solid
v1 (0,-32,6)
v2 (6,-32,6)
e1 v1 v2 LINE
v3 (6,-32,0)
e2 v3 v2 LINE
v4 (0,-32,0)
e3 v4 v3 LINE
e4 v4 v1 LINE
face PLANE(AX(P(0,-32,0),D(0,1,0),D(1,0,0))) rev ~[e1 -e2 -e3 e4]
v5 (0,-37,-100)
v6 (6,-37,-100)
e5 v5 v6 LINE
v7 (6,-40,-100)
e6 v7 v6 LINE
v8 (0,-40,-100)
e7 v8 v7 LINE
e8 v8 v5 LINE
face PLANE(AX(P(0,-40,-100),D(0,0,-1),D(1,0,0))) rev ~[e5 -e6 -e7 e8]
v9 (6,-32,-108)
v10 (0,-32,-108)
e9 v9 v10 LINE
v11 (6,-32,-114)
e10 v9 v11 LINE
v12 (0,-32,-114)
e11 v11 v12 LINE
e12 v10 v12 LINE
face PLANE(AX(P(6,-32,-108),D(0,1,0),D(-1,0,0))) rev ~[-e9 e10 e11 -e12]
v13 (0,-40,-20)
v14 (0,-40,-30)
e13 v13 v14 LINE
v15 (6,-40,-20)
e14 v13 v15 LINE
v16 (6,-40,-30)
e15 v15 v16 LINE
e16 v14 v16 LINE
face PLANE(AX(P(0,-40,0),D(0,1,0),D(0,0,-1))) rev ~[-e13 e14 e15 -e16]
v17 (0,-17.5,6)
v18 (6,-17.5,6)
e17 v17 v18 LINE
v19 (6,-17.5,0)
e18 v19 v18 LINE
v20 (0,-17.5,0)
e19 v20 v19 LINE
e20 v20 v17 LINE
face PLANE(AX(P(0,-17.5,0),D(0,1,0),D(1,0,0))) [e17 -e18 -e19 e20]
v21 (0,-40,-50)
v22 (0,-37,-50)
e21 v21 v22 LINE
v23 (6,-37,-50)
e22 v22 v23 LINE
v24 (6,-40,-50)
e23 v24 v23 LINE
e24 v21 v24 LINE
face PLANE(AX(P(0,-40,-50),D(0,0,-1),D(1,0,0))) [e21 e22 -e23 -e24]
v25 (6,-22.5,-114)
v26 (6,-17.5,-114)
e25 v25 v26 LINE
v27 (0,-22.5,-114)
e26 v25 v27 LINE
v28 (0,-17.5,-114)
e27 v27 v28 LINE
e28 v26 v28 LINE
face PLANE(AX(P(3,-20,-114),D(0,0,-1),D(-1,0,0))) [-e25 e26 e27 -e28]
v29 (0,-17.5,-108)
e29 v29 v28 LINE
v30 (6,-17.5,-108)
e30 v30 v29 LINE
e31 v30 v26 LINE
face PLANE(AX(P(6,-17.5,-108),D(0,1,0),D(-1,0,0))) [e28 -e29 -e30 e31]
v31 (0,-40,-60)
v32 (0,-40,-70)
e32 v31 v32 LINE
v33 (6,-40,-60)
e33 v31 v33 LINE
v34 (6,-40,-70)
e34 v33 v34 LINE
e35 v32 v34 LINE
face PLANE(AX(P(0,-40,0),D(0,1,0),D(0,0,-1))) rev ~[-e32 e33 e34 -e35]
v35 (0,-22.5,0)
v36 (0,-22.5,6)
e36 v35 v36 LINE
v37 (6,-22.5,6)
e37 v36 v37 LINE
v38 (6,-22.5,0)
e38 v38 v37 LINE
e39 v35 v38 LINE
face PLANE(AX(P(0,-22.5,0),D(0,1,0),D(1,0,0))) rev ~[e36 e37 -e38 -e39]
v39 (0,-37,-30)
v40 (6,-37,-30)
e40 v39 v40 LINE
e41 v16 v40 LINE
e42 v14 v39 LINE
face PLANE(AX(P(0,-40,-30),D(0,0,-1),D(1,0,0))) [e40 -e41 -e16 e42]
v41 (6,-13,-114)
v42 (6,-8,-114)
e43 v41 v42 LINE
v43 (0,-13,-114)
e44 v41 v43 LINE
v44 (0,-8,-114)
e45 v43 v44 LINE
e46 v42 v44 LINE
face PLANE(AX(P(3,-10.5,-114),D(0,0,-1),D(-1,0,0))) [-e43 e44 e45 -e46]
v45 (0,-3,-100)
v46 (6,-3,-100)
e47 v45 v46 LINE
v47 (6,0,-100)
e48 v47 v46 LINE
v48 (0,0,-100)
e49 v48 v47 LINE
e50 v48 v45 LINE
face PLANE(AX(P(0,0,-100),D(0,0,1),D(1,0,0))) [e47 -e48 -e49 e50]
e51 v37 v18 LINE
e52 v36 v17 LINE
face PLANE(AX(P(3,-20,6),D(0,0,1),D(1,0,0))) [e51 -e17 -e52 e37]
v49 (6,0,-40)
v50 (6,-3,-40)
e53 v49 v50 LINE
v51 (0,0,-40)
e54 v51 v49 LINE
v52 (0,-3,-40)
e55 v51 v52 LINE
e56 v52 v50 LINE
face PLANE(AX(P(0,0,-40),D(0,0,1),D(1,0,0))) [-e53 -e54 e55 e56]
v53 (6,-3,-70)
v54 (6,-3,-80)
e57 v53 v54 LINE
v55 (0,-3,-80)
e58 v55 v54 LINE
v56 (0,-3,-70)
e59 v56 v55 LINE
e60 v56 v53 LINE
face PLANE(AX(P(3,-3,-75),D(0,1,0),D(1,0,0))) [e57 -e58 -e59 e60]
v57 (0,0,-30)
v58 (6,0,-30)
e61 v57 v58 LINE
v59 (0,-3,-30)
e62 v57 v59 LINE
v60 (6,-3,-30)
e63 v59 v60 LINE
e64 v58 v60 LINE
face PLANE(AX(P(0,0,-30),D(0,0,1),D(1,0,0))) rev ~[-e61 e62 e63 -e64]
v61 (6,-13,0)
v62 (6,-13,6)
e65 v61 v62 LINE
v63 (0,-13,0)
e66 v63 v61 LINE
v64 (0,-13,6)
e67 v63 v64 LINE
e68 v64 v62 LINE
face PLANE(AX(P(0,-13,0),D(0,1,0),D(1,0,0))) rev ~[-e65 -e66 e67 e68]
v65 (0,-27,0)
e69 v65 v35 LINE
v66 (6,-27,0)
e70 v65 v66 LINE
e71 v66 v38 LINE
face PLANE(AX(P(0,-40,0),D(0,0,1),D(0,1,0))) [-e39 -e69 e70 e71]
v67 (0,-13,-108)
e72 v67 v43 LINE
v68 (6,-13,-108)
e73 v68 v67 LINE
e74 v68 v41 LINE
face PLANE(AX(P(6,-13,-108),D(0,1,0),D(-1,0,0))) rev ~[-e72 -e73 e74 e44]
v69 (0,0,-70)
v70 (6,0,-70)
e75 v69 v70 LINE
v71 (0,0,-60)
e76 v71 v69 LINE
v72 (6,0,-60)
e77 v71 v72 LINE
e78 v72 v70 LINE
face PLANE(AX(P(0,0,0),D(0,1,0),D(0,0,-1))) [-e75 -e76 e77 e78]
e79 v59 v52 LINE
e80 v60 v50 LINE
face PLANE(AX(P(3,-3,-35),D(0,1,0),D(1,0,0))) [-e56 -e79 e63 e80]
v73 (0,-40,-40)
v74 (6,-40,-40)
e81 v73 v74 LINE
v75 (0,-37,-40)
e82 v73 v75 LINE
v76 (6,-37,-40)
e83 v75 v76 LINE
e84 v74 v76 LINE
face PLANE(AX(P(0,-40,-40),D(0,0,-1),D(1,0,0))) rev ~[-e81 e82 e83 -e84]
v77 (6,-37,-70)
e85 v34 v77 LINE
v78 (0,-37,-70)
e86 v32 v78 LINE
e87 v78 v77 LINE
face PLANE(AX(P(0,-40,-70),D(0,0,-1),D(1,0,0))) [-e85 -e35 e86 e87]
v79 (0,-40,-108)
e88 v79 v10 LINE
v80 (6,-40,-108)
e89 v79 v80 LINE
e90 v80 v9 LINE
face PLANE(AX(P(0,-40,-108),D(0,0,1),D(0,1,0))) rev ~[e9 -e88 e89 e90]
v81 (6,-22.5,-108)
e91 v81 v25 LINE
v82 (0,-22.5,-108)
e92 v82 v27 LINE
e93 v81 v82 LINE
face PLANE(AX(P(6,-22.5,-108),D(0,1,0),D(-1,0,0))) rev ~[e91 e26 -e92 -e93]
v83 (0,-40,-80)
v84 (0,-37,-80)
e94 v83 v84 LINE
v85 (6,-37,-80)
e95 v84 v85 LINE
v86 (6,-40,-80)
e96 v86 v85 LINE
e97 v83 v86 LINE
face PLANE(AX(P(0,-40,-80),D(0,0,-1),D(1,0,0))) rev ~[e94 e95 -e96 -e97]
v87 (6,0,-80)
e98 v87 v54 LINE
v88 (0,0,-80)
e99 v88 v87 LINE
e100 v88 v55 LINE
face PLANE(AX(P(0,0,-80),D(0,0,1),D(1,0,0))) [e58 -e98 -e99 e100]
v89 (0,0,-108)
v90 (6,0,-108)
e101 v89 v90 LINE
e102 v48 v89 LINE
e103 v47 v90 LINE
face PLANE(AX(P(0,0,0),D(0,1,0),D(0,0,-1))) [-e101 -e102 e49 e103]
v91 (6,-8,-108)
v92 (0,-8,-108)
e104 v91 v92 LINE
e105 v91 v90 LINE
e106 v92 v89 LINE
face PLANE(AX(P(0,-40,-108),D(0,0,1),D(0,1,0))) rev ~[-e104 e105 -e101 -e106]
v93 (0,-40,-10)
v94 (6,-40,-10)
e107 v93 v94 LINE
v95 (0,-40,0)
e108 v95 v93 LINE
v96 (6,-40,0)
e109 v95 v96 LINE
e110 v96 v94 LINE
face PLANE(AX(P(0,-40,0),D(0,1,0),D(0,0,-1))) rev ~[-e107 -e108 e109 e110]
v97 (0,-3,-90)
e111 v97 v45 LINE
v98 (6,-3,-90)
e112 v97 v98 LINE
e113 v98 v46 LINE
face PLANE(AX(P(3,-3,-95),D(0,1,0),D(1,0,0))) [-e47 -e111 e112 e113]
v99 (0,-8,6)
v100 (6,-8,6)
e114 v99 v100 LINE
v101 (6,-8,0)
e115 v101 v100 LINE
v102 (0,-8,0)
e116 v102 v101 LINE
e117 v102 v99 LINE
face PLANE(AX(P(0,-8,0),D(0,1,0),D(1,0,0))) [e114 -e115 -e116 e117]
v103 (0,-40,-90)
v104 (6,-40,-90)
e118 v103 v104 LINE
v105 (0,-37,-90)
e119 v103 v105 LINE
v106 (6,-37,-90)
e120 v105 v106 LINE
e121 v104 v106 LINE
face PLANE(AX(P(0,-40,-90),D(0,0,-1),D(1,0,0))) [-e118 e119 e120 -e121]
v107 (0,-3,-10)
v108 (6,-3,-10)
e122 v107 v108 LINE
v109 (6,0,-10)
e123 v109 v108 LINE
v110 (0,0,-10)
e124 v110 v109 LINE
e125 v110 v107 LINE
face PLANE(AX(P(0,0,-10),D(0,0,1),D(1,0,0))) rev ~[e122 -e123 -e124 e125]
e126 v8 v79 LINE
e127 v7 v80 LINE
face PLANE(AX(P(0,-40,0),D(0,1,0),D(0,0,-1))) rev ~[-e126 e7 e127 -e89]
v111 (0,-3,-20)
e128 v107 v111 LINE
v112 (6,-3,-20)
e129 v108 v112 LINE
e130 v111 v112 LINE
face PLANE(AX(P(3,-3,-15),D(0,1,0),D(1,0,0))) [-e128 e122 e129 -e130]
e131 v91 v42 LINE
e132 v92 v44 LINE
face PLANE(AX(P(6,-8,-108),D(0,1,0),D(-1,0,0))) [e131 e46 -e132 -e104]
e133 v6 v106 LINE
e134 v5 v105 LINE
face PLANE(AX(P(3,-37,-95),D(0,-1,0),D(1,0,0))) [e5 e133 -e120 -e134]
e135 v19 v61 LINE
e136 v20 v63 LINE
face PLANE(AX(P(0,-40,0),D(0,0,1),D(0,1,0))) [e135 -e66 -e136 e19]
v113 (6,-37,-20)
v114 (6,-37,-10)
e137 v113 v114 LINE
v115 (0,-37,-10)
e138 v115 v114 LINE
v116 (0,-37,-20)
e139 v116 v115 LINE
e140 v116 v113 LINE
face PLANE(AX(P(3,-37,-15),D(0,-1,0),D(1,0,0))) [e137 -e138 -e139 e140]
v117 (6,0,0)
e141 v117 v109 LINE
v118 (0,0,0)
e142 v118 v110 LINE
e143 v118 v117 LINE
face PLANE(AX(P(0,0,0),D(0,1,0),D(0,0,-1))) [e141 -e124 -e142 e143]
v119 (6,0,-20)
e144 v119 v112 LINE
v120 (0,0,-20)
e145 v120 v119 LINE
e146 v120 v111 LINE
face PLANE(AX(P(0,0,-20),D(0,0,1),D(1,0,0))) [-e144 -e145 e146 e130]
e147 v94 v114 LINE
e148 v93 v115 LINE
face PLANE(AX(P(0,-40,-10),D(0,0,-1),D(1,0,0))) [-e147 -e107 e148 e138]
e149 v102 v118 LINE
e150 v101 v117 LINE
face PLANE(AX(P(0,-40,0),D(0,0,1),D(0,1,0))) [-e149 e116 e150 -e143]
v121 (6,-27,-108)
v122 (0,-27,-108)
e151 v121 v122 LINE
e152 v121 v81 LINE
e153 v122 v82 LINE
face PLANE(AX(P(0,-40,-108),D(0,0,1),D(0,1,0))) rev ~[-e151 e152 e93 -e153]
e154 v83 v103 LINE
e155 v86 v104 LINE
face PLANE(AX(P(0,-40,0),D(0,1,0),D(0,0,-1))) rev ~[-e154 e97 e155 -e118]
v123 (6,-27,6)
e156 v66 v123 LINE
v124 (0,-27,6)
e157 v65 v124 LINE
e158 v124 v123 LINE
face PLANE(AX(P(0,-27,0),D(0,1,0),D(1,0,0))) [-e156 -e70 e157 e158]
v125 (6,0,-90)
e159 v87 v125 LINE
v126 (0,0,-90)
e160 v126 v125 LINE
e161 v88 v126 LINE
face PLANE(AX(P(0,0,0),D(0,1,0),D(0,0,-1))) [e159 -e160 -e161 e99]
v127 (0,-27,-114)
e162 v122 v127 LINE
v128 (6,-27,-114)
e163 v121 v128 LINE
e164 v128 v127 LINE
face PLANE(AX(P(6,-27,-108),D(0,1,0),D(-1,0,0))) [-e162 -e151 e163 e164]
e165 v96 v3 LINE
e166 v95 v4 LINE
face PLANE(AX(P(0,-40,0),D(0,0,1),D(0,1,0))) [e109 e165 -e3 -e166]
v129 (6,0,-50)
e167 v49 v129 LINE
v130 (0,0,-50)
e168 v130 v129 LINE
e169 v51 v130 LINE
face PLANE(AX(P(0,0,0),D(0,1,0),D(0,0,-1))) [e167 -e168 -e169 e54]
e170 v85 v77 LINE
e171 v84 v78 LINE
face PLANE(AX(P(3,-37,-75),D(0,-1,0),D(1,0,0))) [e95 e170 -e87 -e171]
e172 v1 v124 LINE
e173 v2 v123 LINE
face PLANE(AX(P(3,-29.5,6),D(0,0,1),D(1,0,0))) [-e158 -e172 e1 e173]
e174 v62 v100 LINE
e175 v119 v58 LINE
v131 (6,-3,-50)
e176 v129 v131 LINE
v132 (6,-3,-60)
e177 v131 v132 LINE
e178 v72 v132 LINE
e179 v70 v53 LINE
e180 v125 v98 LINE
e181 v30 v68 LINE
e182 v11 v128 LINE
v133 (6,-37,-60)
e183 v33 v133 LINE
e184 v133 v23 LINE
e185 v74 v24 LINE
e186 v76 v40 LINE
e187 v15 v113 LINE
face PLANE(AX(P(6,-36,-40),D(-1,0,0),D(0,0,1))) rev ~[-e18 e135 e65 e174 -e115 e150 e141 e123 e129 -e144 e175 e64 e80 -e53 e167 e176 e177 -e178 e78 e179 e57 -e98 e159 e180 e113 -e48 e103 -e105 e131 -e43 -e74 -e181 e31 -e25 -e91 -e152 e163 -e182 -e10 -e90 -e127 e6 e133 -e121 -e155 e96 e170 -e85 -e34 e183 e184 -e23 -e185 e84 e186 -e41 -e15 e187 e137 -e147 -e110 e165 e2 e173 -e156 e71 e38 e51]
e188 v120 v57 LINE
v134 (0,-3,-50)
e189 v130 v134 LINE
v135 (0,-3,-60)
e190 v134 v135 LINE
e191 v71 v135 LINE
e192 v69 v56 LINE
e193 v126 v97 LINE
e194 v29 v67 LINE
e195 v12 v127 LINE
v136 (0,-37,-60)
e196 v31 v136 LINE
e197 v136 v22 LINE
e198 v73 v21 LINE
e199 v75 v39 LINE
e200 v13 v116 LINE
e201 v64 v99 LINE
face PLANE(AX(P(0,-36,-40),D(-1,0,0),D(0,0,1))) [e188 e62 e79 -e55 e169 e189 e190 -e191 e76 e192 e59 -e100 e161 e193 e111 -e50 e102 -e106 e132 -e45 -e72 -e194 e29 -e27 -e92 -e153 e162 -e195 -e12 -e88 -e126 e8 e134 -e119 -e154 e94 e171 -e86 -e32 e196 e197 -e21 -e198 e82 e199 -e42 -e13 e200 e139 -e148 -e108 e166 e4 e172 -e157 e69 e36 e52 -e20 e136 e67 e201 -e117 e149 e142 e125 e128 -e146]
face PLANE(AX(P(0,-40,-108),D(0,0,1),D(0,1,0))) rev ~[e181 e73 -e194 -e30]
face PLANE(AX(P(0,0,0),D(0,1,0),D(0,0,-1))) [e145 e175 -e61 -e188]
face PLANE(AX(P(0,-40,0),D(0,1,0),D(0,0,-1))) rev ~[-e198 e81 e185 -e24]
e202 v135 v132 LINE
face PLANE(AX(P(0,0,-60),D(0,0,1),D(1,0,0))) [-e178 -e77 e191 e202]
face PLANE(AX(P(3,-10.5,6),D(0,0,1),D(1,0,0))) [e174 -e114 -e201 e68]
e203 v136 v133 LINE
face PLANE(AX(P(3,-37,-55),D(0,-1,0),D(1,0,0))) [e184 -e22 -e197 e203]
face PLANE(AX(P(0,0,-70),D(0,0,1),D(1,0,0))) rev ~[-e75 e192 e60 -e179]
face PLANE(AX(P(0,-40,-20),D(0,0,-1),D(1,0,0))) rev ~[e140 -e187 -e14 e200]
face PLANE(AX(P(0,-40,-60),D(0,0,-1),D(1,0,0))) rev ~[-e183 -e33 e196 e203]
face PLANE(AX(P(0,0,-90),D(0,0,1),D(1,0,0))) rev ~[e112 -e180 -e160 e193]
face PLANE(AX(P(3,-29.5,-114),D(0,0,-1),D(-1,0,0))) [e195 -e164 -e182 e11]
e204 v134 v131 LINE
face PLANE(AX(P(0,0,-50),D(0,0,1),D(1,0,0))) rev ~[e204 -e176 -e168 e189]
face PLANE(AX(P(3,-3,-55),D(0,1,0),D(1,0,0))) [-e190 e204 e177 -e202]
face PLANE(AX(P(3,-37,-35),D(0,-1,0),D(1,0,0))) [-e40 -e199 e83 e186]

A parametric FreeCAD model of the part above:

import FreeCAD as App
import Part
import Sketcher
from FreeCAD import Vector


def add_polygon(sketch, points):
    """Adds a closed chain of lines whose ends are joined by coincident constraints."""
    first, n = sketch.GeometryCount, len(points)
    for a, b in zip(points, points[1:] + points[:1]):
        sketch.addGeometry(Part.LineSegment(App.Vector(*a, 0), App.Vector(*b, 0)), False)
    for i in range(n):
        sketch.addConstraint(Sketcher.Constraint("Coincident", first + i, 2, first + (i + 1) % n, 1))

doc = App.newDocument("Part")
body = doc.addObject("PartDesign::Body", "Body")

sketch1 = doc.addObject("Sketcher::SketchObject", "Sketch")
body.addObject(sketch1)
sketch1.AttachmentSupport = (doc.YZ_Plane, [""])
sketch1.MapMode = "FlatFace"
add_polygon(sketch1, [(0, 0), (-40, 0), (-40, -108), (0, -108)])
sketch1.addConstraint([
    Sketcher.Constraint("Horizontal", 0),
    Sketcher.Constraint("Vertical", 1),
    Sketcher.Constraint("Horizontal", 2),
    Sketcher.Constraint("Vertical", 3),
    Sketcher.Constraint("Coincident", 3, 2, -1, 1),
    Sketcher.Constraint("DistanceX", 0, 2, 0, 1, 40.0),
    Sketcher.Constraint("DistanceY", 1, 2, 1, 1, 108.0),
])
pad1 = doc.addObject("PartDesign::Pad", "Pad")
body.addObject(pad1)
pad1.Profile = sketch1
pad1.Length = 6

sketch2 = doc.addObject("Sketcher::SketchObject", "Sketch001")
body.addObject(sketch2)
sketch2.AttachmentSupport = (doc.XY_Plane, [""])
sketch2.MapMode = "FlatFace"
add_polygon(sketch2, [(0, -8), (0, -13), (6, -13), (6, -8)])
add_polygon(sketch2, [(0, -18), (0, -22), (6, -22), (6, -18)])
add_polygon(sketch2, [(0, -27), (0, -32), (6, -32), (6, -27)])
sketch2.addConstraint([
    Sketcher.Constraint("Vertical", 0),
    Sketcher.Constraint("Horizontal", 1),
    Sketcher.Constraint("Vertical", 2),
    Sketcher.Constraint("Horizontal", 3),
    Sketcher.Constraint("Vertical", 4),
    Sketcher.Constraint("Horizontal", 5),
    Sketcher.Constraint("Vertical", 6),
    Sketcher.Constraint("Horizontal", 7),
    Sketcher.Constraint("Vertical", 8),
    Sketcher.Constraint("Horizontal", 9),
    Sketcher.Constraint("Vertical", 10),
    Sketcher.Constraint("Horizontal", 11),
    Sketcher.Constraint("PointOnObject", 0, 2, -2),
    Sketcher.Constraint("PointOnObject", 4, 2, -2),
    Sketcher.Constraint("PointOnObject", 8, 2, -2),
    Sketcher.Constraint("Vertical", 2, 2, 5, 2),
    Sketcher.Constraint("Vertical", 6, 2, 9, 2),
    Sketcher.Constraint("Equal", 2, 4),
    Sketcher.Constraint("Equal", 6, 8),
    Sketcher.Constraint("DistanceX", 1, 1, 1, 2, 6.0),
    Sketcher.Constraint("DistanceY", 0, 2, 0, 1, 5.0),
    Sketcher.Constraint("DistanceY", 0, 2, -1, 1, 13.0),
    Sketcher.Constraint("DistanceY", 8, 2, -1, 1, 32.0),
    Sketcher.Constraint("DistanceY", 4, 2, -1, 1, 22.5),
])
pad2 = doc.addObject("PartDesign::Pad", "Pad001")
body.addObject(pad2)
pad2.Profile = sketch2
pad2.Length = 6

sketch3 = doc.addObject("Sketcher::SketchObject", "Sketch002")
body.addObject(sketch3)
sketch3.AttachmentSupport = (doc.XY_Plane, [""])
sketch3.MapMode = "FlatFace"
sketch3.AttachmentOffset = App.Placement(Vector(0, 0, -108), App.Rotation())
add_polygon(sketch3, [(6, -8), (6, -13), (0, -13), (0, -8)])
add_polygon(sketch3, [(6, -18), (6, -22), (0, -22), (0, -18)])
add_polygon(sketch3, [(6, -27), (6, -32), (0, -32), (0, -27)])
sketch3.addConstraint([
    Sketcher.Constraint("Vertical", 0),
    Sketcher.Constraint("Horizontal", 1),
    Sketcher.Constraint("Vertical", 2),
    Sketcher.Constraint("Horizontal", 3),
    Sketcher.Constraint("Vertical", 4),
    Sketcher.Constraint("Horizontal", 5),
    Sketcher.Constraint("Vertical", 6),
    Sketcher.Constraint("Horizontal", 7),
    Sketcher.Constraint("Vertical", 8),
    Sketcher.Constraint("Horizontal", 9),
    Sketcher.Constraint("Vertical", 10),
    Sketcher.Constraint("Horizontal", 11),
    Sketcher.Constraint("PointOnObject", 1, 2, -2),
    Sketcher.Constraint("PointOnObject", 5, 2, -2),
    Sketcher.Constraint("PointOnObject", 9, 2, -2),
    Sketcher.Constraint("Vertical", 3, 2, 4, 2),
    Sketcher.Constraint("Vertical", 7, 2, 8, 2),
    Sketcher.Constraint("Equal", 2, 4),
    Sketcher.Constraint("Equal", 6, 8),
    Sketcher.Constraint("DistanceX", 1, 2, 1, 1, 6.0),
    Sketcher.Constraint("DistanceY", 0, 2, 0, 1, 5.0),
    Sketcher.Constraint("DistanceY", 0, 2, -1, 1, 13.0),
    Sketcher.Constraint("DistanceY", 8, 2, -1, 1, 32.0),
    Sketcher.Constraint("DistanceY", 4, 2, -1, 1, 22.5),
])
pad3 = doc.addObject("PartDesign::Pad", "Pad002")
body.addObject(pad3)
pad3.Profile = sketch3
pad3.Length = 6
pad3.Reversed = True

sketch4 = doc.addObject("Sketcher::SketchObject", "Sketch003")
body.addObject(sketch4)
sketch4.AttachmentSupport = (doc.XZ_Plane, [""])
sketch4.MapMode = "FlatFace"
sketch4.AttachmentOffset = App.Placement(Vector(0, 0, 40), App.Rotation())
add_polygon(sketch4, [(0, -10), (0, -20), (6, -20), (6, -10)])
add_polygon(sketch4, [(0, -30), (0, -40), (6, -40), (6, -30)])
add_polygon(sketch4, [(0, -50), (0, -60), (6, -60), (6, -50)])
add_polygon(sketch4, [(0, -70), (0, -80), (6, -80), (6, -70)])
add_polygon(sketch4, [(0, -90), (0, -100), (6, -100), (6, -90)])
sketch4.addConstraint([
    Sketcher.Constraint("Vertical", 0),
    Sketcher.Constraint("Horizontal", 1),
    Sketcher.Constraint("Vertical", 2),
    Sketcher.Constraint("Horizontal", 3),
    Sketcher.Constraint("Vertical", 4),
    Sketcher.Constraint("Horizontal", 5),
    Sketcher.Constraint("Vertical", 6),
    Sketcher.Constraint("Horizontal", 7),
    Sketcher.Constraint("Vertical", 8),
    Sketcher.Constraint("Horizontal", 9),
    Sketcher.Constraint("Vertical", 10),
    Sketcher.Constraint("Horizontal", 11),
    Sketcher.Constraint("Vertical", 12),
    Sketcher.Constraint("Horizontal", 13),
    Sketcher.Constraint("Vertical", 14),
    Sketcher.Constraint("Horizontal", 15),
    Sketcher.Constraint("Vertical", 16),
    Sketcher.Constraint("Horizontal", 17),
    Sketcher.Constraint("Vertical", 18),
    Sketcher.Constraint("Horizontal", 19),
    Sketcher.Constraint("PointOnObject", 0, 2, -2),
    Sketcher.Constraint("PointOnObject", 4, 2, -2),
    Sketcher.Constraint("PointOnObject", 8, 2, -2),
    Sketcher.Constraint("PointOnObject", 12, 2, -2),
    Sketcher.Constraint("PointOnObject", 16, 2, -2),
    Sketcher.Constraint("Vertical", 2, 2, 5, 2),
    Sketcher.Constraint("Vertical", 6, 2, 9, 2),
    Sketcher.Constraint("Vertical", 10, 2, 13, 2),
    Sketcher.Constraint("Vertical", 14, 2, 17, 2),
    Sketcher.Constraint("Equal", 2, 4),
    Sketcher.Constraint("Equal", 6, 8),
    Sketcher.Constraint("Equal", 10, 12),
    Sketcher.Constraint("Equal", 14, 16),
    Sketcher.Constraint("DistanceX", 1, 1, 1, 2, 6.0),
    Sketcher.Constraint("DistanceY", 0, 2, 0, 1, 10.0),
    Sketcher.Constraint("DistanceY", 0, 2, -1, 1, 20.0),
    Sketcher.Constraint("DistanceY", 4, 2, -1, 1, 40.0),
    Sketcher.Constraint("DistanceY", 8, 2, -1, 1, 60.0),
    Sketcher.Constraint("DistanceY", 12, 2, -1, 1, 80.0),
    Sketcher.Constraint("DistanceY", 16, 2, -1, 1, 100.0),
])
pocket1 = doc.addObject("PartDesign::Pocket", "Pocket")
body.addObject(pocket1)
pocket1.Profile = sketch4
pocket1.Length = 4

sketch5 = doc.addObject("Sketcher::SketchObject", "Sketch004")
body.addObject(sketch5)
sketch5.AttachmentSupport = (doc.XZ_Plane, [""])
sketch5.MapMode = "FlatFace"
sketch5.AttachmentOffset = App.Placement(Vector(0, 0, 36), App.Rotation())
add_polygon(sketch5, [(0, -10), (0, -20), (6, -20), (6, -10)])
sketch5.addConstraint([
    Sketcher.Constraint("Vertical", 0),
    Sketcher.Constraint("Horizontal", 1),
    Sketcher.Constraint("Vertical", 2),
    Sketcher.Constraint("Horizontal", 3),
    Sketcher.Constraint("PointOnObject", 0, 2, -2),
    Sketcher.Constraint("DistanceX", 1, 1, 1, 2, 6.0),
    Sketcher.Constraint("DistanceY", 0, 2, 0, 1, 10.0),
    Sketcher.Constraint("DistanceY", 0, 2, -1, 1, 20.0),
])
pad4 = doc.addObject("PartDesign::Pad", "Pad003")
body.addObject(pad4)
pad4.Profile = sketch5
pad4.Length = 1
doc.recompute()

linearpattern = doc.addObject("PartDesign::LinearPattern", "LinearPattern")
body.addObject(linearpattern)
linearpattern.Originals = [pad4]
linearpattern.Direction = (doc.Z_Axis, [""])
linearpattern.Mode = "offset"
linearpattern.Offset = 20
linearpattern.Occurrences = 5
linearpattern.Reversed = True
body.Tip = linearpattern

sketch6 = doc.addObject("Sketcher::SketchObject", "Sketch005")
body.addObject(sketch6)
sketch6.AttachmentSupport = (doc.XZ_Plane, [""])
sketch6.MapMode = "FlatFace"
add_polygon(sketch6, [(0, -20), (0, -10), (6, -10), (6, -20)])
add_polygon(sketch6, [(0, -40), (0, -30), (6, -30), (6, -40)])
add_polygon(sketch6, [(0, -60), (0, -50), (6, -50), (6, -60)])
add_polygon(sketch6, [(0, -80), (0, -70), (6, -70), (6, -80)])
add_polygon(sketch6, [(0, -100), (0, -90), (6, -90), (6, -100)])
sketch6.addConstraint([
    Sketcher.Constraint("Vertical", 0),
    Sketcher.Constraint("Horizontal", 1),
    Sketcher.Constraint("Vertical", 2),
    Sketcher.Constraint("Horizontal", 3),
    Sketcher.Constraint("Vertical", 4),
    Sketcher.Constraint("Horizontal", 5),
    Sketcher.Constraint("Vertical", 6),
    Sketcher.Constraint("Horizontal", 7),
    Sketcher.Constraint("Vertical", 8),
    Sketcher.Constraint("Horizontal", 9),
    Sketcher.Constraint("Vertical", 10),
    Sketcher.Constraint("Horizontal", 11),
    Sketcher.Constraint("Vertical", 12),
    Sketcher.Constraint("Horizontal", 13),
    Sketcher.Constraint("Vertical", 14),
    Sketcher.Constraint("Horizontal", 15),
    Sketcher.Constraint("Vertical", 16),
    Sketcher.Constraint("Horizontal", 17),
    Sketcher.Constraint("Vertical", 18),
    Sketcher.Constraint("Horizontal", 19),
    Sketcher.Constraint("PointOnObject", 0, 2, -2),
    Sketcher.Constraint("PointOnObject", 4, 2, -2),
    Sketcher.Constraint("PointOnObject", 8, 2, -2),
    Sketcher.Constraint("PointOnObject", 12, 2, -2),
    Sketcher.Constraint("PointOnObject", 16, 2, -2),
    Sketcher.Constraint("Vertical", 2, 2, 5, 2),
    Sketcher.Constraint("Vertical", 6, 2, 9, 2),
    Sketcher.Constraint("Vertical", 10, 2, 13, 2),
    Sketcher.Constraint("Vertical", 14, 2, 17, 2),
    Sketcher.Constraint("Equal", 2, 4),
    Sketcher.Constraint("Equal", 6, 8),
    Sketcher.Constraint("Equal", 10, 12),
    Sketcher.Constraint("Equal", 14, 16),
    Sketcher.Constraint("DistanceX", 1, 1, 1, 2, 6.0),
    Sketcher.Constraint("DistanceY", 0, 1, 0, 2, 10.0),
    Sketcher.Constraint("DistanceY", 0, 2, -1, 1, 10.0),
    Sketcher.Constraint("DistanceY", 4, 2, -1, 1, 30.0),
    Sketcher.Constraint("DistanceY", 8, 2, -1, 1, 50.0),
    Sketcher.Constraint("DistanceY", 12, 2, -1, 1, 70.0),
    Sketcher.Constraint("DistanceY", 16, 2, -1, 1, 90.0),
])
pocket2 = doc.addObject("PartDesign::Pocket", "Pocket001")
body.addObject(pocket2)
pocket2.Profile = sketch6
pocket2.Length = 3
pocket2.Reversed = True

doc.recompute()
